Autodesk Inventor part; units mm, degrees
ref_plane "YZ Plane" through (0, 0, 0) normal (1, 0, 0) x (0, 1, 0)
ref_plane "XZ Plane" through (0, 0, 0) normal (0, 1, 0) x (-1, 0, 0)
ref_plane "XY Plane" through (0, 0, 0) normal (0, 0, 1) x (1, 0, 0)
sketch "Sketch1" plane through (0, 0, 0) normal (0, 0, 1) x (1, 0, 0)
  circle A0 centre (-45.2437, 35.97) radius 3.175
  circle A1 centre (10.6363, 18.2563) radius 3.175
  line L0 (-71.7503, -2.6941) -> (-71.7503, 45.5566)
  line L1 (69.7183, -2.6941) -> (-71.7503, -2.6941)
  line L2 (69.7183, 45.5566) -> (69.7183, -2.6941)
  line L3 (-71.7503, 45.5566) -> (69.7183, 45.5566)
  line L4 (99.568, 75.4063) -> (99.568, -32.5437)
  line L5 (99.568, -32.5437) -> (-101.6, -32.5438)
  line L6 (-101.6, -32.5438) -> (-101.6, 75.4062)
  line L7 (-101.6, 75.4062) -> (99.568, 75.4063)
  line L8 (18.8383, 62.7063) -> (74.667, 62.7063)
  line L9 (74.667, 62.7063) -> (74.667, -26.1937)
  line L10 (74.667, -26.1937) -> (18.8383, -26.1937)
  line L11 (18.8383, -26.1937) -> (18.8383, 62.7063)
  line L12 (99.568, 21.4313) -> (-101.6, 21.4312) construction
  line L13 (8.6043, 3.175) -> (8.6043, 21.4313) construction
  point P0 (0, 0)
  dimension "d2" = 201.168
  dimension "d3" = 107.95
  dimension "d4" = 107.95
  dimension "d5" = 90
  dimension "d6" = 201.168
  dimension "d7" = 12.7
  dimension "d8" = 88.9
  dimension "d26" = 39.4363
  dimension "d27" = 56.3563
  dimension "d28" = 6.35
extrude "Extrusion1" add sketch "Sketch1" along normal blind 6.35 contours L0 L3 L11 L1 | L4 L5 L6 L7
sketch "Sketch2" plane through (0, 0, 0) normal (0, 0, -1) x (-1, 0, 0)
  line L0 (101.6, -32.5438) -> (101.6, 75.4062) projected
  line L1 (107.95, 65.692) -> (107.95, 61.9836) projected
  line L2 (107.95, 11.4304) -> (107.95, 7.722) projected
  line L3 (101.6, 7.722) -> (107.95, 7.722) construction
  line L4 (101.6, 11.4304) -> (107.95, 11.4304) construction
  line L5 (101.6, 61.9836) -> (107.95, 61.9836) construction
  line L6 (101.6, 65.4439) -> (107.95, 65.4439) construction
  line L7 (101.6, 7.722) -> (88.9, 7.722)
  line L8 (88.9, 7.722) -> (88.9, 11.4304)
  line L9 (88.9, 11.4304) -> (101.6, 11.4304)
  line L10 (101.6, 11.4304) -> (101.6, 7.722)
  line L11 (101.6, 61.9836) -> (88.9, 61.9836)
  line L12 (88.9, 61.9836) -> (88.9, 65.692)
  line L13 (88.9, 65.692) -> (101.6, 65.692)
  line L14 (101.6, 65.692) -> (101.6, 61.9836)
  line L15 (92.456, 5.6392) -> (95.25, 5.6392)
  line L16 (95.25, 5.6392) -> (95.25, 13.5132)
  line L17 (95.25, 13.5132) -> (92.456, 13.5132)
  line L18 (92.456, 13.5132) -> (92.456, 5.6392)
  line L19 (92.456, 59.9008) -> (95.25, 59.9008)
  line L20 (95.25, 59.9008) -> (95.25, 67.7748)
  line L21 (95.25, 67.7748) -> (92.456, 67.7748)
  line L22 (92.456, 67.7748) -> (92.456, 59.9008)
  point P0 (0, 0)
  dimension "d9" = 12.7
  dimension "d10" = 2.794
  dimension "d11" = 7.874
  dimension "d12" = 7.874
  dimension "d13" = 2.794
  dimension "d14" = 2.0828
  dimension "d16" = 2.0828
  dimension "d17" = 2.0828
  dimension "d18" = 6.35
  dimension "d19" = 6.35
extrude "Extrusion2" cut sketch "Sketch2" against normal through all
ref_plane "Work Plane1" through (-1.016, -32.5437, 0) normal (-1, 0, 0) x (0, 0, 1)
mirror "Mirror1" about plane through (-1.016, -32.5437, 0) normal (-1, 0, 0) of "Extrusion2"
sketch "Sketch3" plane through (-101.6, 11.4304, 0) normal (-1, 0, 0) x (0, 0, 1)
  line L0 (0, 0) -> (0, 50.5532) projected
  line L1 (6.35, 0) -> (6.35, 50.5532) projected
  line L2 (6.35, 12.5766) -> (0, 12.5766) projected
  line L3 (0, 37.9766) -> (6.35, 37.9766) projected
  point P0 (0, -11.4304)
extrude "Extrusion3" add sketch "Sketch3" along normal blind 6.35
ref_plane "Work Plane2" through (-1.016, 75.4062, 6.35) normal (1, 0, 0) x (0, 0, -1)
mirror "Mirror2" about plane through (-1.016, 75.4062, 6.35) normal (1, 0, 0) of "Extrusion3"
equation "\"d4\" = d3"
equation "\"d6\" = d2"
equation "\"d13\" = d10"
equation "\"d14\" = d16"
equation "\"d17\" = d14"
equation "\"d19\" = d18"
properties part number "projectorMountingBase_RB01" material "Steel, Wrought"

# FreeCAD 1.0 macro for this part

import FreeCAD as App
import Part
import Sketcher

V = App.Vector
Q = App.Units.Quantity

doc = App.newDocument("Part")
body = doc.addObject("PartDesign::Body", "Body")

# Sketch on XY plane
sketch1 = body.newObject("Sketcher::SketchObject", "Sketch")
sketch1.AttachmentSupport = (doc.getObject("XY_Plane"), [""])
sketch1.MapMode = "FlatFace"
sketch1.addGeometry([
    Part.LineSegment(V(99.6, -32.5, 0), V(99.6, 75.4, 0)),  # 0
    Part.LineSegment(V(99.6, 75.4, 0), V(-101.6, 75.4, 0)),  # 1
    Part.LineSegment(V(-101.6, 75.4, 0), V(-101.6, -32.5, 0)),  # 2
    Part.LineSegment(V(-101.6, -32.5, 0), V(99.6, -32.5, 0)),  # 3
    Part.LineSegment(V(18.8, 62.7, 0), V(74.7, 62.7, 0)),  # 4
    Part.LineSegment(V(74.7, 62.7, 0), V(74.7, -26.2, 0)),  # 5
    Part.LineSegment(V(74.7, -26.2, 0), V(18.8, -26.2, 0)),  # 6
    Part.LineSegment(V(18.8, -26.2, 0), V(18.8, 62.7, 0)),  # 7
    Part.Circle(V(10.6, 18.3, 0), V(0, 0, 1), 3.2),  # 8
    Part.Circle(V(-45.2, 36, 0), V(0, 0, 1), 3.2),  # 9
], False)
sketch1.addConstraint([
    Sketcher.Constraint("Coincident", 0, 2, 1, 1),
    Sketcher.Constraint("Coincident", 1, 2, 2, 1),
    Sketcher.Constraint("Coincident", 2, 2, 3, 1),
    Sketcher.Constraint("Coincident", 3, 2, 0, 1),
    Sketcher.Constraint("Coincident", 4, 2, 5, 1),
    Sketcher.Constraint("Coincident", 5, 2, 6, 1),
    Sketcher.Constraint("Coincident", 6, 2, 7, 1),
    Sketcher.Constraint("Coincident", 7, 2, 4, 1),
    Sketcher.Constraint("Vertical", 0),
    Sketcher.Constraint("Horizontal", 1),
    Sketcher.Constraint("Vertical", 2),
    Sketcher.Constraint("Horizontal", 3),
    Sketcher.Constraint("Horizontal", 4),
    Sketcher.Constraint("Vertical", 5),
    Sketcher.Constraint("Horizontal", 6),
    Sketcher.Constraint("Vertical", 7),
    Sketcher.Constraint("Equal", 8, 9),
    Sketcher.Constraint("Diameter", 8, Q("0.25 in")),
    Sketcher.Constraint("DistanceY", 5, 2, 5, 1, Q("3.5 in")),
    Sketcher.Constraint("DistanceX", 1, 2, 1, 1, Q("7.92 in")),
    Sketcher.Constraint("DistanceY", 0, 1, 0, 2, Q("4.25 in")),
    Sketcher.Constraint("DistanceY", 4, 2, 0, 2, Q("0.5 in")),
    Sketcher.Constraint("DistanceX", 1, 2, -1, 1, Q("4 in")),
    Sketcher.Constraint("DistanceX", 1, 2, 9, 3, Q("2.218752 in")),
    Sketcher.Constraint("DistanceY", 2, 2, 8, 3, Q("2 in")),
    Sketcher.Constraint("DistanceX", 9, 3, 8, 3, Q("2.2 in")),
    Sketcher.Constraint("DistanceY", 9, 3, 0, 2, Q("1.5526 in")),
    Sketcher.Constraint("DistanceY", -1, 1, 8, 3, Q("0.718752 in")),
    Sketcher.Constraint("DistanceX", 4, 1, 4, 2, Q("55.8287 mm")),
    Sketcher.Constraint("DistanceX", 8, 3, 4, 2, Q("2.5209 in")),
])
pad1 = body.newObject("PartDesign::Pad", "Pad")
pad1.Profile = sketch1
pad1.Length = Q("0.25 in")

# Sketch on XY plane
sketch2 = body.newObject("Sketcher::SketchObject", "Sketch001")
sketch2.AttachmentSupport = (doc.getObject("XY_Plane"), [""])
sketch2.MapMode = "FlatFace"
sketch2.addGeometry([
    Part.LineSegment(V(-95.2, 7.7, 0), V(-101.6, 7.7, 0)),  # 0
    Part.LineSegment(V(-101.6, 7.7, 0), V(-101.6, 11.4, 0)),  # 1
    Part.LineSegment(V(-101.6, 11.4, 0), V(-95.2, 11.4, 0)),  # 2
    Part.LineSegment(V(-95.2, 11.4, 0), V(-95.2, 13.5, 0)),  # 3
    Part.LineSegment(V(-95.2, 13.5, 0), V(-92.5, 13.5, 0)),  # 4
    Part.LineSegment(V(-92.5, 13.5, 0), V(-92.5, 11.4, 0)),  # 5
    Part.LineSegment(V(-92.5, 11.4, 0), V(-88.9, 11.4, 0)),  # 6
    Part.LineSegment(V(-88.9, 11.4, 0), V(-88.9, 7.7, 0)),  # 7
    Part.LineSegment(V(-88.9, 7.7, 0), V(-92.5, 7.7, 0)),  # 8
    Part.LineSegment(V(-92.5, 7.7, 0), V(-92.5, 5.6, 0)),  # 9
    Part.LineSegment(V(-92.5, 5.6, 0), V(-95.2, 5.6, 0)),  # 10
    Part.LineSegment(V(-95.2, 5.6, 0), V(-95.2, 7.7, 0)),  # 11
    Part.LineSegment(V(-95.2, 62, 0), V(-101.6, 62, 0)),  # 12
    Part.LineSegment(V(-101.6, 62, 0), V(-101.6, 65.7, 0)),  # 13
    Part.LineSegment(V(-101.6, 65.7, 0), V(-95.2, 65.7, 0)),  # 14
    Part.LineSegment(V(-95.2, 65.7, 0), V(-95.2, 67.8, 0)),  # 15
    Part.LineSegment(V(-95.2, 67.8, 0), V(-92.5, 67.8, 0)),  # 16
    Part.LineSegment(V(-92.5, 67.8, 0), V(-92.5, 65.7, 0)),  # 17
    Part.LineSegment(V(-92.5, 65.7, 0), V(-88.9, 65.7, 0)),  # 18
    Part.LineSegment(V(-88.9, 65.7, 0), V(-88.9, 62, 0)),  # 19
    Part.LineSegment(V(-88.9, 62, 0), V(-92.5, 62, 0)),  # 20
    Part.LineSegment(V(-92.5, 62, 0), V(-92.5, 59.9, 0)),  # 21
    Part.LineSegment(V(-92.5, 59.9, 0), V(-95.2, 59.9, 0)),  # 22
    Part.LineSegment(V(-95.2, 59.9, 0), V(-95.2, 62, 0)),  # 23
], False)
sketch2.addConstraint([
    Sketcher.Constraint("Coincident", 0, 2, 1, 1),
    Sketcher.Constraint("Coincident", 1, 2, 2, 1),
    Sketcher.Constraint("Coincident", 2, 2, 3, 1),
    Sketcher.Constraint("Coincident", 3, 2, 4, 1),
    Sketcher.Constraint("Coincident", 4, 2, 5, 1),
    Sketcher.Constraint("Coincident", 5, 2, 6, 1),
    Sketcher.Constraint("Coincident", 6, 2, 7, 1),
    Sketcher.Constraint("Coincident", 7, 2, 8, 1),
    Sketcher.Constraint("Coincident", 8, 2, 9, 1),
    Sketcher.Constraint("Coincident", 9, 2, 10, 1),
    Sketcher.Constraint("Coincident", 10, 2, 11, 1),
    Sketcher.Constraint("Coincident", 11, 2, 0, 1),
    Sketcher.Constraint("Coincident", 12, 2, 13, 1),
    Sketcher.Constraint("Coincident", 13, 2, 14, 1),
    Sketcher.Constraint("Coincident", 14, 2, 15, 1),
    Sketcher.Constraint("Coincident", 15, 2, 16, 1),
    Sketcher.Constraint("Coincident", 16, 2, 17, 1),
    Sketcher.Constraint("Coincident", 17, 2, 18, 1),
    Sketcher.Constraint("Coincident", 18, 2, 19, 1),
    Sketcher.Constraint("Coincident", 19, 2, 20, 1),
    Sketcher.Constraint("Coincident", 20, 2, 21, 1),
    Sketcher.Constraint("Coincident", 21, 2, 22, 1),
    Sketcher.Constraint("Coincident", 22, 2, 23, 1),
    Sketcher.Constraint("Coincident", 23, 2, 12, 1),
    Sketcher.Constraint("Horizontal", 0),
    Sketcher.Constraint("Vertical", 1),
    Sketcher.Constraint("Horizontal", 2),
    Sketcher.Constraint("Vertical", 3),
    Sketcher.Constraint("Horizontal", 4),
    Sketcher.Constraint("Vertical", 5),
    Sketcher.Constraint("Horizontal", 6),
    Sketcher.Constraint("Vertical", 7),
    Sketcher.Constraint("Horizontal", 8),
    Sketcher.Constraint("Vertical", 9),
    Sketcher.Constraint("Horizontal", 10),
    Sketcher.Constraint("Vertical", 11),
    Sketcher.Constraint("Horizontal", 12),
    Sketcher.Constraint("Vertical", 13),
    Sketcher.Constraint("Horizontal", 14),
    Sketcher.Constraint("Vertical", 15),
    Sketcher.Constraint("Horizontal", 16),
    Sketcher.Constraint("Vertical", 17),
    Sketcher.Constraint("Horizontal", 18),
    Sketcher.Constraint("Vertical", 19),
    Sketcher.Constraint("Horizontal", 20),
    Sketcher.Constraint("Vertical", 21),
    Sketcher.Constraint("Horizontal", 22),
    Sketcher.Constraint("Vertical", 23),
    Sketcher.Constraint("Horizontal", 2, 2, 5, 2),
    Sketcher.Constraint("Horizontal", 0, 2, 7, 2),
    Sketcher.Constraint("Horizontal", 14, 2, 17, 2),
    Sketcher.Constraint("Horizontal", 12, 2, 19, 2),
    Sketcher.Constraint("Vertical", 5, 2, 8, 2),
    Sketcher.Constraint("Vertical", 3, 2, 10, 2),
    Sketcher.Constraint("Vertical", 1, 2, 12, 2),
    Sketcher.Constraint("Vertical", 11, 2, 14, 2),
    Sketcher.Constraint("Vertical", 9, 2, 16, 2),
    Sketcher.Constraint("Vertical", 7, 2, 18, 2),
    Sketcher.Constraint("Vertical", 17, 2, 20, 2),
    Sketcher.Constraint("Vertical", 15, 2, 22, 2),
    Sketcher.Constraint("Equal", 5, 9),
    Sketcher.Constraint("Equal", 7, 13),
    Sketcher.Constraint("Equal", 11, 15),
    Sketcher.Constraint("Equal", 17, 21),
    Sketcher.Constraint("DistanceX", 0, 2, 0, 1, Q("0.25 in")),
    Sketcher.Constraint("DistanceX", 4, 1, 4, 2, Q("0.11 in")),
    Sketcher.Constraint("DistanceX", 1, 2, 6, 2, Q("0.5 in")),
    Sketcher.Constraint("DistanceY", 3, 1, 3, 2, Q("0.082 in")),
    Sketcher.Constraint("DistanceX", 0, 2, -1, 1, Q("4 in")),
    Sketcher.Constraint("DistanceY", 1, 1, 1, 2, Q("0.146 in")),
    Sketcher.Constraint("DistanceY", -1, 1, 12, 2, Q("2.4403 in")),
    Sketcher.Constraint("DistanceY", -1, 1, 0, 2, Q("7.722 mm")),
])
pocket1 = body.newObject("PartDesign::Pocket", "Pocket")
pocket1.Profile = sketch2
pocket1.Type = "ThroughAll"
pocket1.Reversed = True
doc.recompute()

datumplane = body.newObject("PartDesign::Plane", "DatumPlane")
datumplane.AttachmentSupport = (doc.getObject("YZ_Plane"), [""])
datumplane.MapMode = "FlatFace"
datumplane.AttachmentOffset = App.Placement(V(0, 0, -0.04 * 25.4), App.Rotation())
mirrored = body.newObject("PartDesign::Mirrored", "Mirrored")
mirrored.Originals = [pocket1]
mirrored.MirrorPlane = (datumplane, [""])
body.Tip = mirrored

# Sketch on YZ plane
sketch3 = body.newObject("Sketcher::SketchObject", "Sketch002")
sketch3.AttachmentSupport = (doc.getObject("YZ_Plane"), [""])
sketch3.MapMode = "FlatFace"
sketch3.AttachmentOffset = App.Placement(V(0, 0, -4 * 25.4), App.Rotation())
sketch3.addGeometry([
    Part.LineSegment(V(49, 0, 0), V(24, 0, 0)),
    Part.LineSegment(V(24, 0, 0), V(24, 6, 0)),
    Part.LineSegment(V(24, 6, 0), V(49, 6, 0)),
    Part.LineSegment(V(49, 6, 0), V(49, 0, 0)),
], False)
sketch3.addConstraint([
    Sketcher.Constraint("Coincident", 0, 2, 1, 1),
    Sketcher.Constraint("Coincident", 1, 2, 2, 1),
    Sketcher.Constraint("Coincident", 2, 2, 3, 1),
    Sketcher.Constraint("Coincident", 3, 2, 0, 1),
    Sketcher.Constraint("Horizontal", 0),
    Sketcher.Constraint("Vertical", 1),
    Sketcher.Constraint("Horizontal", 2),
    Sketcher.Constraint("Vertical", 3),
    Sketcher.Constraint("PointOnObject", 0, 2, -1),
    Sketcher.Constraint("DistanceX", 0, 2, 0, 1, Q("1 in")),
    Sketcher.Constraint("DistanceY", 1, 1, 1, 2, Q("0.25 in")),
    Sketcher.Constraint("DistanceX", -1, 1, 0, 2, Q("24.007 mm")),
])
pad2 = body.newObject("PartDesign::Pad", "Pad001")
pad2.Profile = sketch3
pad2.Length = Q("0.25 in")
pad2.Reversed = True
doc.recompute()

datumplane2 = body.newObject("PartDesign::Plane", "DatumPlane001")
datumplane2.AttachmentSupport = (doc.getObject("YZ_Plane"), [""])
datumplane2.MapMode = "FlatFace"
datumplane2.AttachmentOffset = App.Placement(V(0, 0, -0.04 * 25.4), App.Rotation())
mirrored2 = body.newObject("PartDesign::Mirrored", "Mirrored001")
mirrored2.Originals = [pad2]
mirrored2.MirrorPlane = (datumplane2, [""])
body.Tip = mirrored2

doc.recompute()
